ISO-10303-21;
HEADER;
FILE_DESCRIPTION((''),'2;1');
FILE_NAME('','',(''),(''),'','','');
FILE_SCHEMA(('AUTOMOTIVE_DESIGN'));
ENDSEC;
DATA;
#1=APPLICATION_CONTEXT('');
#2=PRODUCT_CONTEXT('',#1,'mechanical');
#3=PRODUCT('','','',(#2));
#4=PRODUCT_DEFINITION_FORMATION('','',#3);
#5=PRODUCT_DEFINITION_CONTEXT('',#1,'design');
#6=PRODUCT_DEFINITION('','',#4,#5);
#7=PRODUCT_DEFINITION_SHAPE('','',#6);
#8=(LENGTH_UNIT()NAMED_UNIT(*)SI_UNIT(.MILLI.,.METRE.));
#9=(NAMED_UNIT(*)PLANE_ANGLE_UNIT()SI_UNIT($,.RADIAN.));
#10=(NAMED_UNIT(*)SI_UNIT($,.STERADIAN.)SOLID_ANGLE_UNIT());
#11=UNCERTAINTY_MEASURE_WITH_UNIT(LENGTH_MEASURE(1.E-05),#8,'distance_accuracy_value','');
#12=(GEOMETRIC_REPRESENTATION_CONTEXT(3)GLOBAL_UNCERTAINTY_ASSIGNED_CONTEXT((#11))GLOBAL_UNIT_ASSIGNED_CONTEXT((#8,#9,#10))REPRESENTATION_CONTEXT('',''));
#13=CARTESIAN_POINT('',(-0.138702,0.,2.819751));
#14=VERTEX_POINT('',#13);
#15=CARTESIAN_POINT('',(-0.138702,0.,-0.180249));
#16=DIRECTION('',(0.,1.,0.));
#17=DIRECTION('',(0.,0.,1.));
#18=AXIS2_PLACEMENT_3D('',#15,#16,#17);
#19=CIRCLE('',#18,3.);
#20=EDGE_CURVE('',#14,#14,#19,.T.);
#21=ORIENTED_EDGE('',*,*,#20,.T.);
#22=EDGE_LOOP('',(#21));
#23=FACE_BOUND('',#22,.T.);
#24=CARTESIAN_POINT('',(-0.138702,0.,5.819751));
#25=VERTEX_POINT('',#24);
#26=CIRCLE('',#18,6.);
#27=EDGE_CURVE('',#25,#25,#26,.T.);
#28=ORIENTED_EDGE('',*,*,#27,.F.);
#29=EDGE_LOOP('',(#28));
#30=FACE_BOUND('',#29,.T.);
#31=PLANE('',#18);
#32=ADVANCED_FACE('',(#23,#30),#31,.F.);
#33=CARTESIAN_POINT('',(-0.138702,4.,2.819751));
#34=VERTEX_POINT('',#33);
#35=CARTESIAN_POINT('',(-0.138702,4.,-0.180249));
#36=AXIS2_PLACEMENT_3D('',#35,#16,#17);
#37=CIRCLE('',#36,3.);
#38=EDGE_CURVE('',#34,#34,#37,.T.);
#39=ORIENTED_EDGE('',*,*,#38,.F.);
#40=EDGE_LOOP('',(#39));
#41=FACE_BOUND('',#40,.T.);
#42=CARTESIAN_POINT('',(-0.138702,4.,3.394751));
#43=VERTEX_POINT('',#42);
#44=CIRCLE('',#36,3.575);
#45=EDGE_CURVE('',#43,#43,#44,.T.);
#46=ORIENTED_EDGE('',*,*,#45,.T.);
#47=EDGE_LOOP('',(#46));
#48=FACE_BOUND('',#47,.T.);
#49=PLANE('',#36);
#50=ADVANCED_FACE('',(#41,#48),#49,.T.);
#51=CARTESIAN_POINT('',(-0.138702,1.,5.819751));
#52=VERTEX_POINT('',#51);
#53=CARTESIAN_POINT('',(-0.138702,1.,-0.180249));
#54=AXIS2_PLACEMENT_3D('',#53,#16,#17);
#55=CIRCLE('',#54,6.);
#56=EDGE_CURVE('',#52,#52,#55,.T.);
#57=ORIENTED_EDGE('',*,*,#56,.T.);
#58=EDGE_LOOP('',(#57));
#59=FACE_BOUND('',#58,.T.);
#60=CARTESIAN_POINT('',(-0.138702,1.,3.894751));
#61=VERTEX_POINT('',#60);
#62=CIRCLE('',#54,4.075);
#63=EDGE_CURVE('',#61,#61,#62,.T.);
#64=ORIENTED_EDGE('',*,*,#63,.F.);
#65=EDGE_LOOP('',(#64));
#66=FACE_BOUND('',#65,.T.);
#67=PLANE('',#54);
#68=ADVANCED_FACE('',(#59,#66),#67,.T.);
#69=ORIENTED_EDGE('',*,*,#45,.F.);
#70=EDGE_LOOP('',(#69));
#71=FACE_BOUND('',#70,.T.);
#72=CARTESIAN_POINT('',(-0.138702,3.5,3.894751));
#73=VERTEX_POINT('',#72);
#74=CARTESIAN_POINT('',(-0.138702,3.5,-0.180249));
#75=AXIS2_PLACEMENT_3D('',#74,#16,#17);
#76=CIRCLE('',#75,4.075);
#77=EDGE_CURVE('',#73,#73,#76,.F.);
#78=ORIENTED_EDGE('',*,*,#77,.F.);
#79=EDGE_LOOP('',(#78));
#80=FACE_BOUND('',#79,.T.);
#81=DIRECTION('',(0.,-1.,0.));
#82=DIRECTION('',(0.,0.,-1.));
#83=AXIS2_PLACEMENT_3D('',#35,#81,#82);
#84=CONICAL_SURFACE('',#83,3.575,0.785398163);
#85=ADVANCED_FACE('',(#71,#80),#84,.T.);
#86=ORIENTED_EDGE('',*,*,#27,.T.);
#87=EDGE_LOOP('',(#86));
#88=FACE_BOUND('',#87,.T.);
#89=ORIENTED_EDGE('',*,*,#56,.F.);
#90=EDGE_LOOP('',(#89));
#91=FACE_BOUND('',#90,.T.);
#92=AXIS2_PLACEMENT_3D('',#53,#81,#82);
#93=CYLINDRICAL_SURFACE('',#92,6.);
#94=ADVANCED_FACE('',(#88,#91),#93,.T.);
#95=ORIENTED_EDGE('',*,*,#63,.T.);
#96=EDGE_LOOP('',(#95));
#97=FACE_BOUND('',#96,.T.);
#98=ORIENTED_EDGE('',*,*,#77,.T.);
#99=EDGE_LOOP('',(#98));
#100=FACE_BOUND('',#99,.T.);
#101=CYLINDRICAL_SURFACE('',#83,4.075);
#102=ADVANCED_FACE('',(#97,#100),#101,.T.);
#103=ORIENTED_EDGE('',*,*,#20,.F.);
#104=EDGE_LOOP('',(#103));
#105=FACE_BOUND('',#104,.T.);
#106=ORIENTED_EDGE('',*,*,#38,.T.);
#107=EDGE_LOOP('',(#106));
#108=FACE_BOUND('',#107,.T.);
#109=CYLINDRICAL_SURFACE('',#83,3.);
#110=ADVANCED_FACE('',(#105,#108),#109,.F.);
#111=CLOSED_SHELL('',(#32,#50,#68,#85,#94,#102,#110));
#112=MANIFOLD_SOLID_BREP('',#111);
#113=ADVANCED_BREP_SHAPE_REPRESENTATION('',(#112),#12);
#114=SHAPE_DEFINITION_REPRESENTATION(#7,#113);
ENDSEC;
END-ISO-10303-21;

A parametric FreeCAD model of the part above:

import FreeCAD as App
import Part
import Sketcher
Q = App.Units.Quantity


def edges_at(feature, points):
    """Names of the edges that pass closest to the given points."""
    edges = feature.Shape.Edges
    near = lambda p: min(range(len(edges)), key=lambda i: edges[i].distToShape(Part.Vertex(*p))[0])
    return sorted({f"Edge{near(p) + 1}" for p in points})

doc = App.newDocument("Part")
body = doc.addObject("PartDesign::Body", "Body")

sketch1 = doc.addObject("Sketcher::SketchObject", "Sketch")
body.addObject(sketch1)
sketch1.AttachmentSupport = (doc.XZ_Plane, [""])
sketch1.MapMode = "FlatFace"
sketch1.addGeometry(Part.Circle(App.Vector(0, 0, 0), App.Vector(0, 0, 1), 6), False)
sketch1.addConstraint([
    Sketcher.Constraint("Diameter", 0, Q("12 mm")),
    Sketcher.Constraint("DistanceX", 0, 3, -1, 1, Q("0.138702 mm")),
    Sketcher.Constraint("DistanceY", 0, 3, -1, 1, Q("0.180249 mm")),
])
pad1 = doc.addObject("PartDesign::Pad", "Pad")
body.addObject(pad1)
pad1.Profile = sketch1
pad1.Length = 1
pad1.Reversed = True

sketch2 = doc.addObject("Sketcher::SketchObject", "Sketch001")
body.addObject(sketch2)
sketch2.AttachmentSupport = (doc.XZ_Plane, [""])
sketch2.MapMode = "FlatFace"
sketch2.AttachmentOffset = App.Placement(App.Vector(0, 0, -1), App.Rotation())
sketch2.addGeometry([
    Part.Circle(App.Vector(-0.1, -0.2, 0), App.Vector(0, 0, 1), 4.1),
    Part.Circle(App.Vector(-0.1, -0.2, 0), App.Vector(0, 0, 1), 3),
], False)
sketch2.addConstraint([
    Sketcher.Constraint("Coincident", 1, 3, 0, 3),
    Sketcher.Constraint("Diameter", 1, Q("6 mm")),
    Sketcher.Constraint("Diameter", 0, Q("8.15 mm")),
    Sketcher.Constraint("DistanceX", 0, 3, -1, 1, Q("0.138702 mm")),
    Sketcher.Constraint("DistanceY", 0, 3, -1, 1, Q("0.180249 mm")),
])
pad2 = doc.addObject("PartDesign::Pad", "Pad001")
body.addObject(pad2)
pad2.Profile = sketch2
pad2.Length = 3
pad2.Reversed = True

sketch3 = doc.addObject("Sketcher::SketchObject", "Sketch002")
body.addObject(sketch3)
sketch3.AttachmentSupport = (doc.XZ_Plane, [""])
sketch3.MapMode = "FlatFace"
sketch3.AttachmentOffset = App.Placement(App.Vector(0, 0, 2), App.Rotation())
sketch3.addGeometry(Part.Circle(App.Vector(-0.1, -0.2, 0), App.Vector(0, 0, 1), 3), False)
sketch3.addConstraint([
    Sketcher.Constraint("Diameter", 0, Q("6 mm")),
    Sketcher.Constraint("DistanceX", 0, 3, -1, 1, Q("0.138702 mm")),
    Sketcher.Constraint("DistanceY", 0, 3, -1, 1, Q("0.180249 mm")),
])
pocket1 = doc.addObject("PartDesign::Pocket", "Pocket")
body.addObject(pocket1)
pocket1.Profile = sketch3
pocket1.Length = 3
doc.recompute()

chamfer = doc.addObject("PartDesign::Chamfer", "Chamfer")
body.addObject(chamfer)
chamfer.Base = (pocket1, edges_at(pocket1, [(-0.139, 4, -4.255)]))
chamfer.Size = 0.5

doc.recompute()
